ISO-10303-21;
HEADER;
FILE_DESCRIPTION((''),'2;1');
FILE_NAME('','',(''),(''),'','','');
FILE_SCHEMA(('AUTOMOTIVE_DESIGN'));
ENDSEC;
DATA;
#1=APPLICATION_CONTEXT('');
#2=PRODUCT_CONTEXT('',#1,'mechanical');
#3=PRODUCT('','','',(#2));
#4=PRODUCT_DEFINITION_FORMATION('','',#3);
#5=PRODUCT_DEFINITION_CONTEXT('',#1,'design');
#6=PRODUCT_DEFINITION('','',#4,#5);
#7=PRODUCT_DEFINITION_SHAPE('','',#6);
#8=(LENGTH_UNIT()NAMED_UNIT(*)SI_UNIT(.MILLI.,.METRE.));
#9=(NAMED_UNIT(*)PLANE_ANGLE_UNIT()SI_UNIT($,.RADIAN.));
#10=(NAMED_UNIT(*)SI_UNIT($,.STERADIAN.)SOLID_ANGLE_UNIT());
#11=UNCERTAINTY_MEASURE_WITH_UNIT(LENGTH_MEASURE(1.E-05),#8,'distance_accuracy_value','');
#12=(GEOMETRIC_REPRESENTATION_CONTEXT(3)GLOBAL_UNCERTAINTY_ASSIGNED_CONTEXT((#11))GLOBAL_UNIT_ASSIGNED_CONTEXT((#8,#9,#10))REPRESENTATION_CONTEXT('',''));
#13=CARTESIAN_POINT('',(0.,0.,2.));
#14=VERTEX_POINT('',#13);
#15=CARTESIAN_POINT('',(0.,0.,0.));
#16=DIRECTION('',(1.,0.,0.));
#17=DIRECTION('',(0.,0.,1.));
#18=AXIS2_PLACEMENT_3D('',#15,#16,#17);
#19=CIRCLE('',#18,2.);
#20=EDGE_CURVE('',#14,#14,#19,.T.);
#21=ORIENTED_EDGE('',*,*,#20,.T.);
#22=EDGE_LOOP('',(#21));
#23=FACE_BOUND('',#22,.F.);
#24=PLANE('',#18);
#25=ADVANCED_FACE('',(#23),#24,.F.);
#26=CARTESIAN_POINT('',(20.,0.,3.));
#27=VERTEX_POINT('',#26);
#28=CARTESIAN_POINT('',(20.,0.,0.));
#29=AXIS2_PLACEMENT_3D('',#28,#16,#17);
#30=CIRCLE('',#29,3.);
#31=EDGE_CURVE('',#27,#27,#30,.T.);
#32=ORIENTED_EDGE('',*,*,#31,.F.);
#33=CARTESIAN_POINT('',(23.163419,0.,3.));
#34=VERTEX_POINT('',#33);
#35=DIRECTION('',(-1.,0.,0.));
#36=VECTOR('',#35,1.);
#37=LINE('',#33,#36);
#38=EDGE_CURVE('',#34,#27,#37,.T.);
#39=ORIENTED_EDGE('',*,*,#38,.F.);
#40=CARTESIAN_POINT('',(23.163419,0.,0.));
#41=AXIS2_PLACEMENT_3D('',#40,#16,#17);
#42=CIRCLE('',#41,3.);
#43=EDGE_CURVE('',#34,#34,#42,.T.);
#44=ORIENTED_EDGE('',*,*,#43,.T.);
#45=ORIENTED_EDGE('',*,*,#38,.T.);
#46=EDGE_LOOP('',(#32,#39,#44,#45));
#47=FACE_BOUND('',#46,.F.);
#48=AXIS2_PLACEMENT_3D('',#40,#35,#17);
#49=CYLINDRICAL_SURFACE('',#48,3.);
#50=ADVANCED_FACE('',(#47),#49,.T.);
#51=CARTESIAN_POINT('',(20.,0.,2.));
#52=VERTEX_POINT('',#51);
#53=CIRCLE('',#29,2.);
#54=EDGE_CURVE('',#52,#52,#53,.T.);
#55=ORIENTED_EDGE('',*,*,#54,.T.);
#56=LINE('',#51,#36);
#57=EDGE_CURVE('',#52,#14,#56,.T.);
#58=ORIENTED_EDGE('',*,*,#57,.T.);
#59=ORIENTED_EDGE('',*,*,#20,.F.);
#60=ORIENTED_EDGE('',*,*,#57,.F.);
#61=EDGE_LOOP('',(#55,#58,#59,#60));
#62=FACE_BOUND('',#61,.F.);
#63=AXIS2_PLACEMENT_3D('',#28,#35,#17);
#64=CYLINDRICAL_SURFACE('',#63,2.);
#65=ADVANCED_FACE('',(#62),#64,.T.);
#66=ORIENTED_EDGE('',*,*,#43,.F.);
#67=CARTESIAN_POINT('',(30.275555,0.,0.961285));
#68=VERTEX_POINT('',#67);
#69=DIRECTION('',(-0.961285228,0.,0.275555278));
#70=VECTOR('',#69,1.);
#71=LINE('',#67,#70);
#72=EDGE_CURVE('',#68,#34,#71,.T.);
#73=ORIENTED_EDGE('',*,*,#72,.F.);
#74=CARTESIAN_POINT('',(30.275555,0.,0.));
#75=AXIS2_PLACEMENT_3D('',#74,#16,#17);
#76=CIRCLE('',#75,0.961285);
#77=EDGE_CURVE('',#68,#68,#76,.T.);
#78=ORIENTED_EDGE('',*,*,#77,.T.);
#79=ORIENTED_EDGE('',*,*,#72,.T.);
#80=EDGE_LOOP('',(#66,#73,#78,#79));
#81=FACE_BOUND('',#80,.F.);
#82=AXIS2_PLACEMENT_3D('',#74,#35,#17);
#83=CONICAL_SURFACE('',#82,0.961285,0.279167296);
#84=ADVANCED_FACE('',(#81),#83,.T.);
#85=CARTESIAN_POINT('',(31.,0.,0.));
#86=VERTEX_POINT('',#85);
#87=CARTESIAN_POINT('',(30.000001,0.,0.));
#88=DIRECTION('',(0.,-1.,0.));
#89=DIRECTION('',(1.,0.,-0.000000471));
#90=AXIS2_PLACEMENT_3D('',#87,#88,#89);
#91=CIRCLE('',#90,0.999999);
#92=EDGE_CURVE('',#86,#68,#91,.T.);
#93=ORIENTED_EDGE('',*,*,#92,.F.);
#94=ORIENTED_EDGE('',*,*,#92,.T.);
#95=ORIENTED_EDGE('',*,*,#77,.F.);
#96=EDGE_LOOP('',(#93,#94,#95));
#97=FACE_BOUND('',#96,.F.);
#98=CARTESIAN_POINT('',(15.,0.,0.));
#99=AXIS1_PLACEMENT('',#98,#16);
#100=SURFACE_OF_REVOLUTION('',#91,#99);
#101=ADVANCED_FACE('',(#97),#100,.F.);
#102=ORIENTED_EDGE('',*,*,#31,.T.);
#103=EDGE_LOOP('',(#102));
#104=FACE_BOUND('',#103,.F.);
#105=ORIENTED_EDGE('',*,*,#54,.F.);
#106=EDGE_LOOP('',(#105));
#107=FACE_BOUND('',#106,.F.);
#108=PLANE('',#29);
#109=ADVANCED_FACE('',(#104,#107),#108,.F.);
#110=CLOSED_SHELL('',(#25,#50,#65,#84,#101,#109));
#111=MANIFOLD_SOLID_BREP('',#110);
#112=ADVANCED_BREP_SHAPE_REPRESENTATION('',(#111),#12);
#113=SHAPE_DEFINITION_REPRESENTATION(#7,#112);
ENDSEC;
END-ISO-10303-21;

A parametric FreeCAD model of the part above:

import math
import FreeCAD as App
import Part
import Sketcher

V = App.Vector
Q = App.Units.Quantity

doc = App.newDocument("Part")
body = doc.addObject("PartDesign::Body", "Body")

# Sketch on XZ plane
sketch1 = doc.addObject("Sketcher::SketchObject", "Sketch")
body.addObject(sketch1)
sketch1.AttachmentSupport = (doc.XZ_Plane, [""])
sketch1.MapMode = "FlatFace"
sketch1.addGeometry(Part.LineSegment(V(0, 2, 0), V(0, 0, 0)), False)
sketch1.addGeometry(Part.LineSegment(V(0, 0, 0), V(31, 0, 0)), False)
sketch1.addGeometry(Part.ArcOfCircle(Part.Circle(V(30, 0, 0), V(0, 0, 1), 1), math.radians(0), math.radians(74)), False)
sketch1.addGeometry(Part.LineSegment(V(30.3, 1, 0), V(23.2, 3, 0)), False)
sketch1.addGeometry(Part.LineSegment(V(23.2, 3, 0), V(20, 3, 0)), False)
sketch1.addGeometry(Part.LineSegment(V(20, 3, 0), V(20, 2, 0)), False)
sketch1.addGeometry(Part.LineSegment(V(20, 2, 0), V(0, 2, 0)), False)
sketch1.addConstraint(Sketcher.Constraint("Coincident", 0, 2, 1, 1))
sketch1.addConstraint(Sketcher.Constraint("Coincident", 1, 2, 2, 1))
sketch1.addConstraint(Sketcher.Constraint("Tangent", 2, 2, 3, 1))
sketch1.addConstraint(Sketcher.Constraint("Coincident", 3, 2, 4, 1))
sketch1.addConstraint(Sketcher.Constraint("Coincident", 4, 2, 5, 1))
sketch1.addConstraint(Sketcher.Constraint("Coincident", 5, 2, 6, 1))
sketch1.addConstraint(Sketcher.Constraint("Coincident", 6, 2, 0, 1))
sketch1.addConstraint(Sketcher.Constraint("Vertical", 0))
sketch1.addConstraint(Sketcher.Constraint("Horizontal", 1))
sketch1.addConstraint(Sketcher.Constraint("Horizontal", 4))
sketch1.addConstraint(Sketcher.Constraint("Vertical", 5))
sketch1.addConstraint(Sketcher.Constraint("Horizontal", 6))
sketch1.addConstraint(Sketcher.Constraint("Coincident", 0, 2, -1, 1))
sketch1.addConstraint(Sketcher.Constraint("PointOnObject", 2, 3, -1))
sketch1.addConstraint(Sketcher.Constraint("Radius", 2, Q("0.999999 mm")))
sketch1.addConstraint(Sketcher.Constraint("DistanceX", 1, 1, 1, 2, Q("31 mm")))
sketch1.addConstraint(Sketcher.Constraint("DistanceX", 6, 2, 6, 1, Q("20 mm")))
sketch1.addConstraint(Sketcher.Constraint("DistanceY", 0, 2, 0, 1, Q("2 mm")))
sketch1.addConstraint(Sketcher.Constraint("DistanceY", 5, 2, 5, 1, Q("1 mm")))
sketch1.addConstraint(Sketcher.Constraint("DistanceX", 4, 2, 4, 1, Q("3.163419 mm")))
revolution = doc.addObject("PartDesign::Revolution", "Revolution")
body.addObject(revolution)
revolution.Profile = sketch1
revolution.ReferenceAxis = (sketch1, ["H_Axis"])
revolution.Angle = 360

doc.recompute()
